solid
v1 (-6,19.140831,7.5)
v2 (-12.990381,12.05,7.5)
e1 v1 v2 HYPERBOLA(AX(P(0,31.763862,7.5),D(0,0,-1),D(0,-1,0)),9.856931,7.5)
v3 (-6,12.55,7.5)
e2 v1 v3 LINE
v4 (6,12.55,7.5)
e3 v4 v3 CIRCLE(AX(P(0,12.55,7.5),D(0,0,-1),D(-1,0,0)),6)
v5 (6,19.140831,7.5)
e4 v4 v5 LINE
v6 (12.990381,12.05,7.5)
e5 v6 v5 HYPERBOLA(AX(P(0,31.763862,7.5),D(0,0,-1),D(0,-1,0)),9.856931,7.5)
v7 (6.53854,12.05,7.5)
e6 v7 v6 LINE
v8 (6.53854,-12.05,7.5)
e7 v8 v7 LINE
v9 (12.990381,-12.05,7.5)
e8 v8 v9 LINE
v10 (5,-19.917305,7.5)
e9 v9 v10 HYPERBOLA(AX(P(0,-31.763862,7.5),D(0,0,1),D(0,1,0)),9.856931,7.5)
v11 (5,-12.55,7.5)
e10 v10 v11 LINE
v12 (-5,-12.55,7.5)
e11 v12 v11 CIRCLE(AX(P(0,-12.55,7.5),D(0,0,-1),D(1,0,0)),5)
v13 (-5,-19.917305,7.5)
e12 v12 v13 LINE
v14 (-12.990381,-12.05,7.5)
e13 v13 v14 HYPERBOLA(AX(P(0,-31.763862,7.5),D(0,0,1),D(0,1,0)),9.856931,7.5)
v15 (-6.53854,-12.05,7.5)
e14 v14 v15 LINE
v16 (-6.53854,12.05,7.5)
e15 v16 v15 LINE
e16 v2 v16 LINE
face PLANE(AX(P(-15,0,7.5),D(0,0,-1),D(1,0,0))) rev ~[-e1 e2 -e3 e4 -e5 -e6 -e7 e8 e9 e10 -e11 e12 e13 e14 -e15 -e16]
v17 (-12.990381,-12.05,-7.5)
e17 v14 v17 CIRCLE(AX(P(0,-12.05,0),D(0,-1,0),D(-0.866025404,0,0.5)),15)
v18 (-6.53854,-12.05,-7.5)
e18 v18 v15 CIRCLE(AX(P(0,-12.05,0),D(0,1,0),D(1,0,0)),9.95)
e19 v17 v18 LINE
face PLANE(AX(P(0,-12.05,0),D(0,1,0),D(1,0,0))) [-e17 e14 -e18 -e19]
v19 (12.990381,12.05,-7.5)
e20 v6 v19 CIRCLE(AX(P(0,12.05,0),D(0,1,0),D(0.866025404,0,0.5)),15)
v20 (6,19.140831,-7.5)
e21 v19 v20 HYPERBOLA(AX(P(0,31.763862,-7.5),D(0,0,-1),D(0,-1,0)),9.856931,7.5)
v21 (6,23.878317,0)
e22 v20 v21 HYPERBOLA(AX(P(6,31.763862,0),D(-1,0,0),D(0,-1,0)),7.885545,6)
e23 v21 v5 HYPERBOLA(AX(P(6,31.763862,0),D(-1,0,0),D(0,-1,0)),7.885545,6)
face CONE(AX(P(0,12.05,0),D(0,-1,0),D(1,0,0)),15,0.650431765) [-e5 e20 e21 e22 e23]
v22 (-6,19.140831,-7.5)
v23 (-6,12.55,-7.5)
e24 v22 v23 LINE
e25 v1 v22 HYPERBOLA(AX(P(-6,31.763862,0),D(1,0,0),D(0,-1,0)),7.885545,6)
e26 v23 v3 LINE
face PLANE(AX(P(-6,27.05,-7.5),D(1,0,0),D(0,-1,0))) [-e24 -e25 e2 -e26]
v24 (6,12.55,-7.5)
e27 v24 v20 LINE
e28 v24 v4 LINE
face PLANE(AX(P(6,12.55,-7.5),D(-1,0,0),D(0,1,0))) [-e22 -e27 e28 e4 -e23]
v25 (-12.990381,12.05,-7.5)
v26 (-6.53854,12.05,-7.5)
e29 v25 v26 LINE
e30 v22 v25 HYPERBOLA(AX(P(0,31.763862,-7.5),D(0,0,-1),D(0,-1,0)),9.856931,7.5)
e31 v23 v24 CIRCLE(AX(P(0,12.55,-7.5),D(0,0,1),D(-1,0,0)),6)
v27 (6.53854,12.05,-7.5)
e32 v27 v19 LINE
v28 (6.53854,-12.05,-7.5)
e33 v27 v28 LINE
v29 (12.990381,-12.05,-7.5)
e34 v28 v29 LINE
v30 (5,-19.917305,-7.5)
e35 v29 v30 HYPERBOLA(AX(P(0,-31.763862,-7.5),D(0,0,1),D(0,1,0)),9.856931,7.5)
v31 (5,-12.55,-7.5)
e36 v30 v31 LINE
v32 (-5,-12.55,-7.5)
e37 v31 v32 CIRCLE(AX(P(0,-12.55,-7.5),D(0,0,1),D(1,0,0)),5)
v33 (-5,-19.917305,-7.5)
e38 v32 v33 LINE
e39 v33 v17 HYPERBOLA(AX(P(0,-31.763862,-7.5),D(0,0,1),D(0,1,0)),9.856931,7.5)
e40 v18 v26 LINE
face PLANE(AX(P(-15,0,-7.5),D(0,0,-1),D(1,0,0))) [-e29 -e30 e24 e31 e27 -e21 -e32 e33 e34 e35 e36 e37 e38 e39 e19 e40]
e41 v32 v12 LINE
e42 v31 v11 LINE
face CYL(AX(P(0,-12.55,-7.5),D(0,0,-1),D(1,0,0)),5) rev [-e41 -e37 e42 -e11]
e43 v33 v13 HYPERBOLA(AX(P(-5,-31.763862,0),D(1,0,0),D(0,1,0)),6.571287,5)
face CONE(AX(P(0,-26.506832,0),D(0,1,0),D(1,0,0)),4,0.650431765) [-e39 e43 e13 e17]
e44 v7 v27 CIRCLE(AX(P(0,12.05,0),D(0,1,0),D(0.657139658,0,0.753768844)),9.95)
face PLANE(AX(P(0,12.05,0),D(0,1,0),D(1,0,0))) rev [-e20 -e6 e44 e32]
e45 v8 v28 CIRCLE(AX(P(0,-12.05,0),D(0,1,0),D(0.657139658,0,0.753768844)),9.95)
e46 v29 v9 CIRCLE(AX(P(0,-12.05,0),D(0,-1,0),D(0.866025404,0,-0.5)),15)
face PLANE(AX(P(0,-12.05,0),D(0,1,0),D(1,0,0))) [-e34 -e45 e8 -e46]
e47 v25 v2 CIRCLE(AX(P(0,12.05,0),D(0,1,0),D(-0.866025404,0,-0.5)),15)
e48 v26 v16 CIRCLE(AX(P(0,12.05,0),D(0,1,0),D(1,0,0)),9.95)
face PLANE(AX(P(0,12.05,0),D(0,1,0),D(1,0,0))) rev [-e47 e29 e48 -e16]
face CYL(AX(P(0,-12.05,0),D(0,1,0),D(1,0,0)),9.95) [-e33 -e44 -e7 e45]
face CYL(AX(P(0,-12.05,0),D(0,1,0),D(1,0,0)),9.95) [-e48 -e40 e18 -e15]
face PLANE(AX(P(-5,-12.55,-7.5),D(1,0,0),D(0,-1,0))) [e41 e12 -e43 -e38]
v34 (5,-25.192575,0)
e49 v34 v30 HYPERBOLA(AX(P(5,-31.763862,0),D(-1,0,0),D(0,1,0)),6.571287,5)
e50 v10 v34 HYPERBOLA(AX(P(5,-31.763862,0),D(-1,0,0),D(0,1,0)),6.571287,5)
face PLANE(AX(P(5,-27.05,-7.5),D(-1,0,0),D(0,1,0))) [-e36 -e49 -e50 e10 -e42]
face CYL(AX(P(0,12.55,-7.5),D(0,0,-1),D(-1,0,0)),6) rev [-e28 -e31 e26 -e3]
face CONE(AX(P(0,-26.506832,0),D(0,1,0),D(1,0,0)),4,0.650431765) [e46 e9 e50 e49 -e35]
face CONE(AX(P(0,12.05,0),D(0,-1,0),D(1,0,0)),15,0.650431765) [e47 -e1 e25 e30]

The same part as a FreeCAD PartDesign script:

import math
import FreeCAD as App
import Part
import Sketcher
from FreeCAD import Vector
Q = App.Units.Quantity

doc = App.newDocument("Part")
body = doc.addObject("PartDesign::Body", "Body")

# Sketch on XY plane
sketch1 = doc.addObject("Sketcher::SketchObject", "Sketch")
body.addObject(sketch1)
sketch1.AttachmentSupport = (doc.XY_Plane, [""])
sketch1.MapMode = "FlatFace"
sketch1.addGeometry(Part.ArcOfCircle(Part.Circle(Vector(0, 12, 0), Vector(0, 0, 1), 15), math.radians(74.53), math.radians(90)), False)
sketch1.addGeometry(Part.LineSegment(Vector(0, 27.1, 0), Vector(0, -27.1, 0)), False)
sketch1.addGeometry(Part.ArcOfCircle(Part.Circle(Vector(0, -12, 0), Vector(0, 0, 1), 15), math.radians(-90), math.radians(-74.53)), False)
sketch1.addGeometry(Part.LineSegment(Vector(4, -26.5, 0), Vector(15, -12.1, 0)), False)
sketch1.addGeometry(Part.LineSegment(Vector(15, -12.1, 0), Vector(9.9, -12.1, 0)), False)
sketch1.addGeometry(Part.LineSegment(Vector(9.9, -12.1, 0), Vector(9.9, 12.1, 0)), False)
sketch1.addGeometry(Part.LineSegment(Vector(9.9, 12.1, 0), Vector(15, 12.1, 0)), False)
sketch1.addGeometry(Part.LineSegment(Vector(15, 12.1, 0), Vector(4, 26.5, 0)), False)
sketch1.addConstraint(Sketcher.Constraint("Coincident", 0, 2, 1, 1))
sketch1.addConstraint(Sketcher.Constraint("Coincident", 1, 2, 2, 1))
sketch1.addConstraint(Sketcher.Constraint("Coincident", 2, 2, 3, 1))
sketch1.addConstraint(Sketcher.Constraint("Coincident", 3, 2, 4, 1))
sketch1.addConstraint(Sketcher.Constraint("Coincident", 4, 2, 5, 1))
sketch1.addConstraint(Sketcher.Constraint("Coincident", 5, 2, 6, 1))
sketch1.addConstraint(Sketcher.Constraint("Coincident", 6, 2, 7, 1))
sketch1.addConstraint(Sketcher.Constraint("Coincident", 7, 2, 0, 1))
sketch1.addConstraint(Sketcher.Constraint("Vertical", 1))
sketch1.addConstraint(Sketcher.Constraint("Horizontal", 4))
sketch1.addConstraint(Sketcher.Constraint("Vertical", 5))
sketch1.addConstraint(Sketcher.Constraint("Horizontal", 6))
sketch1.addConstraint(Sketcher.Constraint("Equal", 0, 2))
sketch1.addConstraint(Sketcher.Constraint("Symmetric", 0, 3, 2, 3, -1, 1))
sketch1.addConstraint(Sketcher.Constraint("Symmetric", 3, 2, 6, 2, -1))
sketch1.addConstraint(Sketcher.Constraint("Symmetric", 2, 2, 7, 2, -1))
sketch1.addConstraint(Sketcher.Constraint("PointOnObject", 0, 2, -2))
sketch1.addConstraint(Sketcher.Constraint("Horizontal", 2, 3, 3, 2))
sketch1.addConstraint(Sketcher.Constraint("Radius", 0, Q("15 mm")))
sketch1.addConstraint(Sketcher.Constraint("DistanceY", 1, 2, 1, 1, Q("54.1 mm")))
sketch1.addConstraint(Sketcher.Constraint("DistanceX", -1, 1, 2, 2, Q("4 mm")))
sketch1.addConstraint(Sketcher.Constraint("DistanceX", -1, 1, 3, 2, Q("15 mm")))
sketch1.addConstraint(Sketcher.Constraint("DistanceX", 4, 2, 4, 1, Q("5.05 mm")))
revolution = doc.addObject("PartDesign::Revolution", "Revolution")
body.addObject(revolution)
revolution.Profile = sketch1
revolution.ReferenceAxis = (sketch1, ["V_Axis"])
revolution.Angle = 360

# Sketch on XZ plane
sketch2 = doc.addObject("Sketcher::SketchObject", "Sketch001")
body.addObject(sketch2)
sketch2.AttachmentSupport = (doc.XZ_Plane, [""])
sketch2.MapMode = "FlatFace"
sketch2.addGeometry(Part.LineSegment(Vector(-23, -23, 0), Vector(-23, 23, 0)), False)
sketch2.addGeometry(Part.LineSegment(Vector(-23, 23, 0), Vector(23, 23, 0)), False)
sketch2.addGeometry(Part.LineSegment(Vector(23, 23, 0), Vector(23, -23, 0)), False)
sketch2.addGeometry(Part.LineSegment(Vector(23, -23, 0), Vector(-23, -23, 0)), False)
sketch2.addGeometry(Part.LineSegment(Vector(15, 8, 0), Vector(-15, 8, 0)), False)
sketch2.addGeometry(Part.LineSegment(Vector(-15, 8, 0), Vector(-15, -8, 0)), False)
sketch2.addGeometry(Part.LineSegment(Vector(-15, -8, 0), Vector(15, -8, 0)), False)
sketch2.addGeometry(Part.LineSegment(Vector(15, -8, 0), Vector(15, 8, 0)), False)
sketch2.addConstraint(Sketcher.Constraint("Coincident", 0, 2, 1, 1))
sketch2.addConstraint(Sketcher.Constraint("Coincident", 1, 2, 2, 1))
sketch2.addConstraint(Sketcher.Constraint("Coincident", 2, 2, 3, 1))
sketch2.addConstraint(Sketcher.Constraint("Coincident", 3, 2, 0, 1))
sketch2.addConstraint(Sketcher.Constraint("Coincident", 4, 2, 5, 1))
sketch2.addConstraint(Sketcher.Constraint("Coincident", 5, 2, 6, 1))
sketch2.addConstraint(Sketcher.Constraint("Coincident", 6, 2, 7, 1))
sketch2.addConstraint(Sketcher.Constraint("Coincident", 7, 2, 4, 1))
sketch2.addConstraint(Sketcher.Constraint("Vertical", 0))
sketch2.addConstraint(Sketcher.Constraint("Horizontal", 1))
sketch2.addConstraint(Sketcher.Constraint("Vertical", 2))
sketch2.addConstraint(Sketcher.Constraint("Horizontal", 3))
sketch2.addConstraint(Sketcher.Constraint("Horizontal", 4))
sketch2.addConstraint(Sketcher.Constraint("Vertical", 5))
sketch2.addConstraint(Sketcher.Constraint("Horizontal", 6))
sketch2.addConstraint(Sketcher.Constraint("Vertical", 7))
sketch2.addConstraint(Sketcher.Constraint("Symmetric", 0, 2, 2, 2, -1, 1))
sketch2.addConstraint(Sketcher.Constraint("Symmetric", 4, 2, 6, 2, -1, 1))
sketch2.addConstraint(Sketcher.Constraint("Equal", 3, 0))
sketch2.addConstraint(Sketcher.Constraint("DistanceX", 4, 2, 4, 1, Q("30 mm")))
sketch2.addConstraint(Sketcher.Constraint("DistanceY", 5, 2, 5, 1, Q("15 mm")))
sketch2.addConstraint(Sketcher.Constraint("DistanceX", 1, 1, 1, 2, Q("45.75 mm")))
pocket1 = doc.addObject("PartDesign::Pocket", "Pocket")
body.addObject(pocket1)
pocket1.Profile = sketch2
pocket1.Type = "ThroughAll"
pocket1.Midplane = True

# Sketch on XY plane
sketch3 = doc.addObject("Sketcher::SketchObject", "Sketch002")
body.addObject(sketch3)
sketch3.AttachmentSupport = (doc.XY_Plane, [""])
sketch3.MapMode = "FlatFace"
sketch3.AttachmentOffset = App.Placement(Vector(0, 0, -7.5), App.Rotation())
sketch3.addGeometry(Part.LineSegment(Vector(-6, 13, 0), Vector(-6, 27, 0)), False)
sketch3.addGeometry(Part.ArcOfCircle(Part.Circle(Vector(0, 27, 0), Vector(0, 0, 1), 6), math.radians(0), math.radians(180)), False)
sketch3.addGeometry(Part.LineSegment(Vector(6, 27, 0), Vector(6, 13, 0)), False)
sketch3.addGeometry(Part.ArcOfCircle(Part.Circle(Vector(0, 13, 0), Vector(0, 0, 1), 6), math.radians(180), math.radians(360)), False)
sketch3.addGeometry(Part.LineSegment(Vector(5, -13, 0), Vector(5, -27, 0)), False)
sketch3.addGeometry(Part.ArcOfCircle(Part.Circle(Vector(0, -27, 0), Vector(0, 0, 1), 5), math.radians(180), math.radians(360)), False)
sketch3.addGeometry(Part.LineSegment(Vector(-5, -27, 0), Vector(-5, -13, 0)), False)
sketch3.addGeometry(Part.ArcOfCircle(Part.Circle(Vector(0, -13, 0), Vector(0, 0, 1), 5), math.radians(0), math.radians(180)), False)
sketch3.addConstraint(Sketcher.Constraint("Tangent", 0, 2, 1, 2))
sketch3.addConstraint(Sketcher.Constraint("Tangent", 1, 1, 2, 1))
sketch3.addConstraint(Sketcher.Constraint("Tangent", 2, 2, 3, 2))
sketch3.addConstraint(Sketcher.Constraint("Tangent", 3, 1, 0, 1))
sketch3.addConstraint(Sketcher.Constraint("Tangent", 4, 2, 5, 2))
sketch3.addConstraint(Sketcher.Constraint("Tangent", 5, 1, 6, 1))
sketch3.addConstraint(Sketcher.Constraint("Tangent", 6, 2, 7, 2))
sketch3.addConstraint(Sketcher.Constraint("Tangent", 7, 1, 4, 1))
sketch3.addConstraint(Sketcher.Constraint("Vertical", 0))
sketch3.addConstraint(Sketcher.Constraint("Vertical", 2))
sketch3.addConstraint(Sketcher.Constraint("Vertical", 4))
sketch3.addConstraint(Sketcher.Constraint("Vertical", 6))
sketch3.addConstraint(Sketcher.Constraint("Symmetric", 1, 3, 5, 3, -1, 1))
sketch3.addConstraint(Sketcher.Constraint("Symmetric", 3, 3, 7, 3, -1))
sketch3.addConstraint(Sketcher.Constraint("Radius", 1, Q("6 mm")))
sketch3.addConstraint(Sketcher.Constraint("Radius", 5, Q("5 mm")))
sketch3.addConstraint(Sketcher.Constraint("DistanceY", 0, 1, 0, 2, Q("14.5 mm")))
sketch3.addConstraint(Sketcher.Constraint("DistanceY", 5, 3, 3, 3, Q("39.6 mm")))
pocket2 = doc.addObject("PartDesign::Pocket", "Pocket001")
body.addObject(pocket2)
pocket2.Profile = sketch3
pocket2.Type = "ThroughAll"
pocket2.Reversed = True

doc.recompute()
